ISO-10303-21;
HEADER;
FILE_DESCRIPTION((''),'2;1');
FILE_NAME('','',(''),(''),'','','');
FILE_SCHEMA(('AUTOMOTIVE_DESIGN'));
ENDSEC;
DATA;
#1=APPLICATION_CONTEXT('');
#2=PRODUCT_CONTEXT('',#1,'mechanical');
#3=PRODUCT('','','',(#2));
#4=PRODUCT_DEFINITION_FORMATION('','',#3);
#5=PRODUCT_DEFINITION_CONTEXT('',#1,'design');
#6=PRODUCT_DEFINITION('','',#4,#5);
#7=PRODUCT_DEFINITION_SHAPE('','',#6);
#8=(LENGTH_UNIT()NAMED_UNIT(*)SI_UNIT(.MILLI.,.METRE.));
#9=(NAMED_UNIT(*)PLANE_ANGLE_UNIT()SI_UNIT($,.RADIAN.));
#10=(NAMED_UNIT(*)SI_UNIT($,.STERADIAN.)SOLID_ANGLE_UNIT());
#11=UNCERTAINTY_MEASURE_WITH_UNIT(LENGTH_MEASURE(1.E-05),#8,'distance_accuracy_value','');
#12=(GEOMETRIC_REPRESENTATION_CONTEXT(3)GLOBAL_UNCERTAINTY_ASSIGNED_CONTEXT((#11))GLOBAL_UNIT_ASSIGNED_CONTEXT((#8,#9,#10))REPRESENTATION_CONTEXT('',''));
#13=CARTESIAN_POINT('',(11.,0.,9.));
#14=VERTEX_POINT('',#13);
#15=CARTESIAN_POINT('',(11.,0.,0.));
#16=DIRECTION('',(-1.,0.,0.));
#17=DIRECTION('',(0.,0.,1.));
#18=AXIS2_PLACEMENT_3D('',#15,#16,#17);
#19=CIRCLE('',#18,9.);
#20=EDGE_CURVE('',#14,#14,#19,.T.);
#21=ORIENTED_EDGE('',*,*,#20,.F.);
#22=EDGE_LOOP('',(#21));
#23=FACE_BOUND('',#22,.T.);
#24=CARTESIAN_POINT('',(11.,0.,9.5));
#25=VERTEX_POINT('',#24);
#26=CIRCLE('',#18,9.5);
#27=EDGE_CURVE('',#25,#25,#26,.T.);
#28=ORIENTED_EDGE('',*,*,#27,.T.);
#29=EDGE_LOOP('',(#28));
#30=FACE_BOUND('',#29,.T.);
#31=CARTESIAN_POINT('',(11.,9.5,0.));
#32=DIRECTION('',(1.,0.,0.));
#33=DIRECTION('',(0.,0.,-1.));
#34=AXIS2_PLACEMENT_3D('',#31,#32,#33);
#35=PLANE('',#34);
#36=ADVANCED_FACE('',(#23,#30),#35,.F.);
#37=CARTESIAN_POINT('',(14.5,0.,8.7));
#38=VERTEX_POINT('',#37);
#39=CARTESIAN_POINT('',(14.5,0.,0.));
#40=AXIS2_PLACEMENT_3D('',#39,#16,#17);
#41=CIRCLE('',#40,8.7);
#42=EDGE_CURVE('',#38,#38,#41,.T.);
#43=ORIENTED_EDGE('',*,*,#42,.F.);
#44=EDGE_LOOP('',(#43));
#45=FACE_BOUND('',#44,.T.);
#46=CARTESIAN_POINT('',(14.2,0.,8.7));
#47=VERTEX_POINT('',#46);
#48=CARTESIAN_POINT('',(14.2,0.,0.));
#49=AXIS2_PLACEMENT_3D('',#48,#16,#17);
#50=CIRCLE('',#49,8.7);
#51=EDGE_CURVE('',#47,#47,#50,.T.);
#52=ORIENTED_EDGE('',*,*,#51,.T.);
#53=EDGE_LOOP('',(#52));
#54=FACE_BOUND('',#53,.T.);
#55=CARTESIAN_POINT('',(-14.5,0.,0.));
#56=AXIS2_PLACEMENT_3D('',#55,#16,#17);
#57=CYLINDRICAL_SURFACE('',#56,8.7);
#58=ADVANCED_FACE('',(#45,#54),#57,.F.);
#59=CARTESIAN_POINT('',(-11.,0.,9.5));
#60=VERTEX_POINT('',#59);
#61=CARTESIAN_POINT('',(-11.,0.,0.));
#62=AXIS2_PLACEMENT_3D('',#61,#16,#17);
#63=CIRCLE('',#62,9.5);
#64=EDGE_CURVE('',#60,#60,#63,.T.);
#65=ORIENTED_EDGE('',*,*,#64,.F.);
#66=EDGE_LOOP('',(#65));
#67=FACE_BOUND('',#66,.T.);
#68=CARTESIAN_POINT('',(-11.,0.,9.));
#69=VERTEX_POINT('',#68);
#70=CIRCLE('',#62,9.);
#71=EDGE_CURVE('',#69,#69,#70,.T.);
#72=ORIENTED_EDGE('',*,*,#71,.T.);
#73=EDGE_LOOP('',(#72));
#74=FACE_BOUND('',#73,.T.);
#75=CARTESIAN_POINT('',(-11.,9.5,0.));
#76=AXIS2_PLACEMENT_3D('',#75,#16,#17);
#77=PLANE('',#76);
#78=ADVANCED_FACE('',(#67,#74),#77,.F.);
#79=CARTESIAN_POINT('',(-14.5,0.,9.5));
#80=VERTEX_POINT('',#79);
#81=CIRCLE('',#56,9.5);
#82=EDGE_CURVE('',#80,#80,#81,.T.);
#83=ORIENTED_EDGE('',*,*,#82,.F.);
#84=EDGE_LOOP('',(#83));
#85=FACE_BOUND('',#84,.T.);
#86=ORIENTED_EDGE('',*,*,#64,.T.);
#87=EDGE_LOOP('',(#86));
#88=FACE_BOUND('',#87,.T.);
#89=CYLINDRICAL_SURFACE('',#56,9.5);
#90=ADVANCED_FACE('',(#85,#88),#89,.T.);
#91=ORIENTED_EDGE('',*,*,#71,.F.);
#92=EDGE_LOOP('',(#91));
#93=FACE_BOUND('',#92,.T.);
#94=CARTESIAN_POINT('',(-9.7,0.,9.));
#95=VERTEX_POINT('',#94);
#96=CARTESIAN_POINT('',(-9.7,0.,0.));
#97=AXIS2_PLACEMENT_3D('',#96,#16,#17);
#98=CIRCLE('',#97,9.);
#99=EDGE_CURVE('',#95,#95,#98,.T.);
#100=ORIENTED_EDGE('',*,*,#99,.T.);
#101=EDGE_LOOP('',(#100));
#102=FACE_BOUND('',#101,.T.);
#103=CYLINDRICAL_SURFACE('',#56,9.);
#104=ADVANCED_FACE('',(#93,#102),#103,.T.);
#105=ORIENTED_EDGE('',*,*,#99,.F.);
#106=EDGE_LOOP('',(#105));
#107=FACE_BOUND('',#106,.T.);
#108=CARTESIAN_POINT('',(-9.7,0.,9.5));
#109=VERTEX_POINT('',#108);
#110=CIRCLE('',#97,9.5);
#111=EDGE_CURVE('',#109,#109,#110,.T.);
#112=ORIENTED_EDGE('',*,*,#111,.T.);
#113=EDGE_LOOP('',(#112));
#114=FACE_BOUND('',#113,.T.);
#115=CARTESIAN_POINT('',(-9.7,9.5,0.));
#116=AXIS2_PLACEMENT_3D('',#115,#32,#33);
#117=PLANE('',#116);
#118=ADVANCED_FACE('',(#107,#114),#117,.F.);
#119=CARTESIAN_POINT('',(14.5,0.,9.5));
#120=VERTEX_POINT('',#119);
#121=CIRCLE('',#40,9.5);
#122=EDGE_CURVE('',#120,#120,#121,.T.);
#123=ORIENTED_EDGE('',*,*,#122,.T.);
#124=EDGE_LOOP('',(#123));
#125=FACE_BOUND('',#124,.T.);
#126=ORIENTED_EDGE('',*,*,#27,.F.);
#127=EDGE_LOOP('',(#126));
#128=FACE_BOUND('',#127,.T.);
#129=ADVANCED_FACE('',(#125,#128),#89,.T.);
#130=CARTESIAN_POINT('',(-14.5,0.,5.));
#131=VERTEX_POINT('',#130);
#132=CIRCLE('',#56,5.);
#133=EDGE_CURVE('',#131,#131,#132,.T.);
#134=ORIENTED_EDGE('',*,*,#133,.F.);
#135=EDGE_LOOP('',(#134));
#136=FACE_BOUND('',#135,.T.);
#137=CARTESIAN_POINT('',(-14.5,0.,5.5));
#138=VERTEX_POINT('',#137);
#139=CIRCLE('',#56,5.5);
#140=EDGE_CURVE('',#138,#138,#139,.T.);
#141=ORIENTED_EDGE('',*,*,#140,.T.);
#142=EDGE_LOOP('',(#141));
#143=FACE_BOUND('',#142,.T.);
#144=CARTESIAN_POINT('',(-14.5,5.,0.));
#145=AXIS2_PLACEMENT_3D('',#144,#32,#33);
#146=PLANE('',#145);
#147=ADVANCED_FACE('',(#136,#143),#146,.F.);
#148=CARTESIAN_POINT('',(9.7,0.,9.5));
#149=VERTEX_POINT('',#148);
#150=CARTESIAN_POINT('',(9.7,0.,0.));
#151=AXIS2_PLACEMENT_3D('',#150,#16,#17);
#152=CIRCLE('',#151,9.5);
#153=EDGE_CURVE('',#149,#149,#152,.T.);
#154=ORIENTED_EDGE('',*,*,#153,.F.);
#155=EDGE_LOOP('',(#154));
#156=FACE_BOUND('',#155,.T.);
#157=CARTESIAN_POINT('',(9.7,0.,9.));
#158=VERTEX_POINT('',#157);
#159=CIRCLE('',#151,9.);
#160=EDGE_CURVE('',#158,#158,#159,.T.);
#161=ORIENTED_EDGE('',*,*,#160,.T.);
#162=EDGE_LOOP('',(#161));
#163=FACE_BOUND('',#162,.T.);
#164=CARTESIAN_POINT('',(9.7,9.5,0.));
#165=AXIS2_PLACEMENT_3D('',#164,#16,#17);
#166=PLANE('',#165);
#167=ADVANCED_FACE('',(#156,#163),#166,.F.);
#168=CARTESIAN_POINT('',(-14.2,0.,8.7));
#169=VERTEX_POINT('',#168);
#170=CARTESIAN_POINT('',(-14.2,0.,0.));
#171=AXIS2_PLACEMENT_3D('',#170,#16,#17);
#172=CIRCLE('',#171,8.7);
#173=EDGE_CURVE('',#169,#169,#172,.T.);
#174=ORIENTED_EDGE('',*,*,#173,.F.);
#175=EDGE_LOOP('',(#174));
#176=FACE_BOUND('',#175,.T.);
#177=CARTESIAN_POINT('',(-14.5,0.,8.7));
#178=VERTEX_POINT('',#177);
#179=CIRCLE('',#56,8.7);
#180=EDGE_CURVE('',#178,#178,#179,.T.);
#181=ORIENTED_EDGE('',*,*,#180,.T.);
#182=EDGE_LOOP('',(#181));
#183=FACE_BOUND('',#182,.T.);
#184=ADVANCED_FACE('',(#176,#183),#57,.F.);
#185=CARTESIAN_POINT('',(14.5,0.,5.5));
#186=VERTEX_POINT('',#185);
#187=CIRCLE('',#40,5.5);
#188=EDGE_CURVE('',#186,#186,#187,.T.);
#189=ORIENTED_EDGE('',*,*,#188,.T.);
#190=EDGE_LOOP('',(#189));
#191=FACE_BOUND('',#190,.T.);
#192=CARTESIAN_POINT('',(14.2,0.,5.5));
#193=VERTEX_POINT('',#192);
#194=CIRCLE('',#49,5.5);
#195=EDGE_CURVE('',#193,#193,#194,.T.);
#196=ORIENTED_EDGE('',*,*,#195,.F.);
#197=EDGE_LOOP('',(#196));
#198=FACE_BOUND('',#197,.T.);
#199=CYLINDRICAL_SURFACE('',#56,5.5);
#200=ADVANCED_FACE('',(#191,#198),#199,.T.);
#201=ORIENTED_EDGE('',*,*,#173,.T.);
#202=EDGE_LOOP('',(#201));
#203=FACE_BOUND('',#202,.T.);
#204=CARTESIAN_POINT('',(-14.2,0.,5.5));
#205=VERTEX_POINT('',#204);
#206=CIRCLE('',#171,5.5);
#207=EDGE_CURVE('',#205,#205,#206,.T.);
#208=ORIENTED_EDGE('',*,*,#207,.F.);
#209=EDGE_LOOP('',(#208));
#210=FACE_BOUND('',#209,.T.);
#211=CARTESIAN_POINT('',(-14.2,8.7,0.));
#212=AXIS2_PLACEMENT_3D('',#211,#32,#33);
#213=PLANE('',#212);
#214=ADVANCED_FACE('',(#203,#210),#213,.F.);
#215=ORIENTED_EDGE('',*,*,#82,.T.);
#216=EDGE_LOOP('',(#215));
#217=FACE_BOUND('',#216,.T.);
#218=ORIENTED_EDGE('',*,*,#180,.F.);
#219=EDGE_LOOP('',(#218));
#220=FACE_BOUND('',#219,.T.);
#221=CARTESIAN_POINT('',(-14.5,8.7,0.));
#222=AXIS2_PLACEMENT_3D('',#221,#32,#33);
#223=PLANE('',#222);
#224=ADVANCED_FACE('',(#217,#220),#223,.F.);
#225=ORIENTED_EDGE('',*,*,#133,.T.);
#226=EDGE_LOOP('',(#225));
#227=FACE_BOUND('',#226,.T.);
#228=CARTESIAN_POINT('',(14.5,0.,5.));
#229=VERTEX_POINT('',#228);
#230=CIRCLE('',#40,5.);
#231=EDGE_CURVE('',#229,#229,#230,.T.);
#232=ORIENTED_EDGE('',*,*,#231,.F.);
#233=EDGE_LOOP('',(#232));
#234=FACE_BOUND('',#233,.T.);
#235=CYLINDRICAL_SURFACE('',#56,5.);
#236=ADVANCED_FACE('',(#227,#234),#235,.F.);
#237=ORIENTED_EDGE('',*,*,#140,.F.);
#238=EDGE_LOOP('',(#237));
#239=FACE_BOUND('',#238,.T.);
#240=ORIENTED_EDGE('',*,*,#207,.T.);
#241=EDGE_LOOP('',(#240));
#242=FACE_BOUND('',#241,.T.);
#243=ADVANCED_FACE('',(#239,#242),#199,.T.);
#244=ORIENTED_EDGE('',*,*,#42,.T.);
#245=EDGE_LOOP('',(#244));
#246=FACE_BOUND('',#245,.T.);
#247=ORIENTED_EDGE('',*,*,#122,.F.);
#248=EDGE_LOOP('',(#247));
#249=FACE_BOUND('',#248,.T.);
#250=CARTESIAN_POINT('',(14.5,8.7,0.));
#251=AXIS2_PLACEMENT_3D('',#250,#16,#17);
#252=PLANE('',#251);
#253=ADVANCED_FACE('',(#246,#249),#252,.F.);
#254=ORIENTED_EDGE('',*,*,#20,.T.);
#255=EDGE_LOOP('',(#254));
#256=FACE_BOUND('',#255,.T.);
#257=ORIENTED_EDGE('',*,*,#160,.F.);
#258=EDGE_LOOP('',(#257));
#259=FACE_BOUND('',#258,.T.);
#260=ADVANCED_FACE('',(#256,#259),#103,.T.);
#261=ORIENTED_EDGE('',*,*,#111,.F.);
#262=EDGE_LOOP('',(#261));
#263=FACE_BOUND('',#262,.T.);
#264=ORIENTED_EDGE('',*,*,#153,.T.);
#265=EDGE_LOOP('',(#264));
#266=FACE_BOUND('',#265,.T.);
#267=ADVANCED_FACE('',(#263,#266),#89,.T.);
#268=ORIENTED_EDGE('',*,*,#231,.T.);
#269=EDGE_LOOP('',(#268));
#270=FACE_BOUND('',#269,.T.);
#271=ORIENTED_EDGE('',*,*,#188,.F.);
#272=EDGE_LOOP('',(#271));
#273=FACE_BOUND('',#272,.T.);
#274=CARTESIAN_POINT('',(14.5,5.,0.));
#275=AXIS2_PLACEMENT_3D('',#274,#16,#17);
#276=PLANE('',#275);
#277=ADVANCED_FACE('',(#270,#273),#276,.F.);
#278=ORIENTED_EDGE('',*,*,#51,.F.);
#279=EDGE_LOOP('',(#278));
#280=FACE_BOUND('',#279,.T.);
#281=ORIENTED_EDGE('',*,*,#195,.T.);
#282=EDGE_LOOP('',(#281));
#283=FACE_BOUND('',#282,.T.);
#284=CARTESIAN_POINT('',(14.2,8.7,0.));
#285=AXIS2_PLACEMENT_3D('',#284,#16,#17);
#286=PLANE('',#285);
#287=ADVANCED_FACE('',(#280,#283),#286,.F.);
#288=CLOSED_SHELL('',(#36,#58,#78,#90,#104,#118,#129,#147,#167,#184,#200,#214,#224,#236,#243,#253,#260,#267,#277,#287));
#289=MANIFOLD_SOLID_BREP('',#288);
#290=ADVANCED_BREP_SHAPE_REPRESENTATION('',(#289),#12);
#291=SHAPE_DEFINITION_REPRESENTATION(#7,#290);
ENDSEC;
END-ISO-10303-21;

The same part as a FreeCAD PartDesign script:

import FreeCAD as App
import Part
import Sketcher

V = App.Vector
Q = App.Units.Quantity


def add_polygon(sketch, points):
    """Adds a closed chain of lines whose ends are joined by coincident constraints."""
    first, n = sketch.GeometryCount, len(points)
    for a, b in zip(points, points[1:] + points[:1]):
        sketch.addGeometry(Part.LineSegment(App.Vector(*a, 0), App.Vector(*b, 0)), False)
    for i in range(n):
        sketch.addConstraint(Sketcher.Constraint("Coincident", first + i, 2, first + (i + 1) % n, 1))

doc = App.newDocument("Part")
body = doc.addObject("PartDesign::Body", "Body")

sketch1 = body.newObject("Sketcher::SketchObject", "Sketch")
sketch1.AttachmentSupport = (doc.getObject("XY_Plane"), [""])
sketch1.MapMode = "FlatFace"
add_polygon(sketch1, [(-14.5, 5), (14.5, 5), (14.5, 5.5), (14.2, 5.5), (14.2, 8.7), (14.5, 8.7), (14.5, 9.5), (11, 9.5), (11, 9), (9.7, 9), (9.7, 9.5), (-9.7, 9.5), (-9.7, 9), (-11, 9), (-11, 9.5), (-14.5, 9.5), (-14.5, 8.7), (-14.2, 8.7), (-14.2, 5.5), (-14.5, 5.5)])
sketch1.addConstraint(Sketcher.Constraint("Horizontal", 0))
sketch1.addConstraint(Sketcher.Constraint("Vertical", 1))
sketch1.addConstraint(Sketcher.Constraint("Horizontal", 2))
sketch1.addConstraint(Sketcher.Constraint("Vertical", 3))
sketch1.addConstraint(Sketcher.Constraint("Horizontal", 4))
sketch1.addConstraint(Sketcher.Constraint("Vertical", 5))
sketch1.addConstraint(Sketcher.Constraint("Horizontal", 6))
sketch1.addConstraint(Sketcher.Constraint("Vertical", 7))
sketch1.addConstraint(Sketcher.Constraint("Horizontal", 8))
sketch1.addConstraint(Sketcher.Constraint("Vertical", 9))
sketch1.addConstraint(Sketcher.Constraint("Horizontal", 10))
sketch1.addConstraint(Sketcher.Constraint("Vertical", 11))
sketch1.addConstraint(Sketcher.Constraint("Horizontal", 12))
sketch1.addConstraint(Sketcher.Constraint("Vertical", 13))
sketch1.addConstraint(Sketcher.Constraint("Horizontal", 14))
sketch1.addConstraint(Sketcher.Constraint("Vertical", 15))
sketch1.addConstraint(Sketcher.Constraint("Horizontal", 16))
sketch1.addConstraint(Sketcher.Constraint("Vertical", 17))
sketch1.addConstraint(Sketcher.Constraint("Horizontal", 18))
sketch1.addConstraint(Sketcher.Constraint("Vertical", 19))
sketch1.addConstraint(Sketcher.Constraint("Symmetric", 8, 2, 11, 2, -2))
sketch1.addConstraint(Sketcher.Constraint("Symmetric", 6, 2, 13, 2, -2))
sketch1.addConstraint(Sketcher.Constraint("Symmetric", 4, 2, 15, 2, -2))
sketch1.addConstraint(Sketcher.Constraint("Symmetric", 2, 2, 17, 2, -2))
sketch1.addConstraint(Sketcher.Constraint("Horizontal", 6, 2, 9, 2))
sketch1.addConstraint(Sketcher.Constraint("Vertical", 1, 2, 4, 2))
sketch1.addConstraint(Sketcher.Constraint("Vertical", 15, 2, 18, 2))
sketch1.addConstraint(Sketcher.Constraint("Equal", 1, 7))
sketch1.addConstraint(Sketcher.Constraint("DistanceX", 0, 1, 0, 2, Q("29 mm")))
sketch1.addConstraint(Sketcher.Constraint("DistanceX", 2, 2, 2, 1, Q("0.3 mm")))
sketch1.addConstraint(Sketcher.Constraint("DistanceX", 6, 2, 6, 1, Q("3.5 mm")))
sketch1.addConstraint(Sketcher.Constraint("DistanceX", 8, 2, 8, 1, Q("1.3 mm")))
sketch1.addConstraint(Sketcher.Constraint("DistanceY", 1, 1, 1, 2, Q("0.5 mm")))
sketch1.addConstraint(Sketcher.Constraint("DistanceY", 3, 1, 3, 2, Q("3.2 mm")))
sketch1.addConstraint(Sketcher.Constraint("DistanceY", 5, 1, 5, 2, Q("0.8 mm")))
sketch1.addConstraint(Sketcher.Constraint("DistanceY", -1, 1, 0, 2, Q("5 mm")))
revolution = body.newObject("PartDesign::Revolution", "Revolution")
revolution.Profile = sketch1
revolution.ReferenceAxis = (sketch1, ["H_Axis"])
revolution.Angle = 360

doc.recompute()
